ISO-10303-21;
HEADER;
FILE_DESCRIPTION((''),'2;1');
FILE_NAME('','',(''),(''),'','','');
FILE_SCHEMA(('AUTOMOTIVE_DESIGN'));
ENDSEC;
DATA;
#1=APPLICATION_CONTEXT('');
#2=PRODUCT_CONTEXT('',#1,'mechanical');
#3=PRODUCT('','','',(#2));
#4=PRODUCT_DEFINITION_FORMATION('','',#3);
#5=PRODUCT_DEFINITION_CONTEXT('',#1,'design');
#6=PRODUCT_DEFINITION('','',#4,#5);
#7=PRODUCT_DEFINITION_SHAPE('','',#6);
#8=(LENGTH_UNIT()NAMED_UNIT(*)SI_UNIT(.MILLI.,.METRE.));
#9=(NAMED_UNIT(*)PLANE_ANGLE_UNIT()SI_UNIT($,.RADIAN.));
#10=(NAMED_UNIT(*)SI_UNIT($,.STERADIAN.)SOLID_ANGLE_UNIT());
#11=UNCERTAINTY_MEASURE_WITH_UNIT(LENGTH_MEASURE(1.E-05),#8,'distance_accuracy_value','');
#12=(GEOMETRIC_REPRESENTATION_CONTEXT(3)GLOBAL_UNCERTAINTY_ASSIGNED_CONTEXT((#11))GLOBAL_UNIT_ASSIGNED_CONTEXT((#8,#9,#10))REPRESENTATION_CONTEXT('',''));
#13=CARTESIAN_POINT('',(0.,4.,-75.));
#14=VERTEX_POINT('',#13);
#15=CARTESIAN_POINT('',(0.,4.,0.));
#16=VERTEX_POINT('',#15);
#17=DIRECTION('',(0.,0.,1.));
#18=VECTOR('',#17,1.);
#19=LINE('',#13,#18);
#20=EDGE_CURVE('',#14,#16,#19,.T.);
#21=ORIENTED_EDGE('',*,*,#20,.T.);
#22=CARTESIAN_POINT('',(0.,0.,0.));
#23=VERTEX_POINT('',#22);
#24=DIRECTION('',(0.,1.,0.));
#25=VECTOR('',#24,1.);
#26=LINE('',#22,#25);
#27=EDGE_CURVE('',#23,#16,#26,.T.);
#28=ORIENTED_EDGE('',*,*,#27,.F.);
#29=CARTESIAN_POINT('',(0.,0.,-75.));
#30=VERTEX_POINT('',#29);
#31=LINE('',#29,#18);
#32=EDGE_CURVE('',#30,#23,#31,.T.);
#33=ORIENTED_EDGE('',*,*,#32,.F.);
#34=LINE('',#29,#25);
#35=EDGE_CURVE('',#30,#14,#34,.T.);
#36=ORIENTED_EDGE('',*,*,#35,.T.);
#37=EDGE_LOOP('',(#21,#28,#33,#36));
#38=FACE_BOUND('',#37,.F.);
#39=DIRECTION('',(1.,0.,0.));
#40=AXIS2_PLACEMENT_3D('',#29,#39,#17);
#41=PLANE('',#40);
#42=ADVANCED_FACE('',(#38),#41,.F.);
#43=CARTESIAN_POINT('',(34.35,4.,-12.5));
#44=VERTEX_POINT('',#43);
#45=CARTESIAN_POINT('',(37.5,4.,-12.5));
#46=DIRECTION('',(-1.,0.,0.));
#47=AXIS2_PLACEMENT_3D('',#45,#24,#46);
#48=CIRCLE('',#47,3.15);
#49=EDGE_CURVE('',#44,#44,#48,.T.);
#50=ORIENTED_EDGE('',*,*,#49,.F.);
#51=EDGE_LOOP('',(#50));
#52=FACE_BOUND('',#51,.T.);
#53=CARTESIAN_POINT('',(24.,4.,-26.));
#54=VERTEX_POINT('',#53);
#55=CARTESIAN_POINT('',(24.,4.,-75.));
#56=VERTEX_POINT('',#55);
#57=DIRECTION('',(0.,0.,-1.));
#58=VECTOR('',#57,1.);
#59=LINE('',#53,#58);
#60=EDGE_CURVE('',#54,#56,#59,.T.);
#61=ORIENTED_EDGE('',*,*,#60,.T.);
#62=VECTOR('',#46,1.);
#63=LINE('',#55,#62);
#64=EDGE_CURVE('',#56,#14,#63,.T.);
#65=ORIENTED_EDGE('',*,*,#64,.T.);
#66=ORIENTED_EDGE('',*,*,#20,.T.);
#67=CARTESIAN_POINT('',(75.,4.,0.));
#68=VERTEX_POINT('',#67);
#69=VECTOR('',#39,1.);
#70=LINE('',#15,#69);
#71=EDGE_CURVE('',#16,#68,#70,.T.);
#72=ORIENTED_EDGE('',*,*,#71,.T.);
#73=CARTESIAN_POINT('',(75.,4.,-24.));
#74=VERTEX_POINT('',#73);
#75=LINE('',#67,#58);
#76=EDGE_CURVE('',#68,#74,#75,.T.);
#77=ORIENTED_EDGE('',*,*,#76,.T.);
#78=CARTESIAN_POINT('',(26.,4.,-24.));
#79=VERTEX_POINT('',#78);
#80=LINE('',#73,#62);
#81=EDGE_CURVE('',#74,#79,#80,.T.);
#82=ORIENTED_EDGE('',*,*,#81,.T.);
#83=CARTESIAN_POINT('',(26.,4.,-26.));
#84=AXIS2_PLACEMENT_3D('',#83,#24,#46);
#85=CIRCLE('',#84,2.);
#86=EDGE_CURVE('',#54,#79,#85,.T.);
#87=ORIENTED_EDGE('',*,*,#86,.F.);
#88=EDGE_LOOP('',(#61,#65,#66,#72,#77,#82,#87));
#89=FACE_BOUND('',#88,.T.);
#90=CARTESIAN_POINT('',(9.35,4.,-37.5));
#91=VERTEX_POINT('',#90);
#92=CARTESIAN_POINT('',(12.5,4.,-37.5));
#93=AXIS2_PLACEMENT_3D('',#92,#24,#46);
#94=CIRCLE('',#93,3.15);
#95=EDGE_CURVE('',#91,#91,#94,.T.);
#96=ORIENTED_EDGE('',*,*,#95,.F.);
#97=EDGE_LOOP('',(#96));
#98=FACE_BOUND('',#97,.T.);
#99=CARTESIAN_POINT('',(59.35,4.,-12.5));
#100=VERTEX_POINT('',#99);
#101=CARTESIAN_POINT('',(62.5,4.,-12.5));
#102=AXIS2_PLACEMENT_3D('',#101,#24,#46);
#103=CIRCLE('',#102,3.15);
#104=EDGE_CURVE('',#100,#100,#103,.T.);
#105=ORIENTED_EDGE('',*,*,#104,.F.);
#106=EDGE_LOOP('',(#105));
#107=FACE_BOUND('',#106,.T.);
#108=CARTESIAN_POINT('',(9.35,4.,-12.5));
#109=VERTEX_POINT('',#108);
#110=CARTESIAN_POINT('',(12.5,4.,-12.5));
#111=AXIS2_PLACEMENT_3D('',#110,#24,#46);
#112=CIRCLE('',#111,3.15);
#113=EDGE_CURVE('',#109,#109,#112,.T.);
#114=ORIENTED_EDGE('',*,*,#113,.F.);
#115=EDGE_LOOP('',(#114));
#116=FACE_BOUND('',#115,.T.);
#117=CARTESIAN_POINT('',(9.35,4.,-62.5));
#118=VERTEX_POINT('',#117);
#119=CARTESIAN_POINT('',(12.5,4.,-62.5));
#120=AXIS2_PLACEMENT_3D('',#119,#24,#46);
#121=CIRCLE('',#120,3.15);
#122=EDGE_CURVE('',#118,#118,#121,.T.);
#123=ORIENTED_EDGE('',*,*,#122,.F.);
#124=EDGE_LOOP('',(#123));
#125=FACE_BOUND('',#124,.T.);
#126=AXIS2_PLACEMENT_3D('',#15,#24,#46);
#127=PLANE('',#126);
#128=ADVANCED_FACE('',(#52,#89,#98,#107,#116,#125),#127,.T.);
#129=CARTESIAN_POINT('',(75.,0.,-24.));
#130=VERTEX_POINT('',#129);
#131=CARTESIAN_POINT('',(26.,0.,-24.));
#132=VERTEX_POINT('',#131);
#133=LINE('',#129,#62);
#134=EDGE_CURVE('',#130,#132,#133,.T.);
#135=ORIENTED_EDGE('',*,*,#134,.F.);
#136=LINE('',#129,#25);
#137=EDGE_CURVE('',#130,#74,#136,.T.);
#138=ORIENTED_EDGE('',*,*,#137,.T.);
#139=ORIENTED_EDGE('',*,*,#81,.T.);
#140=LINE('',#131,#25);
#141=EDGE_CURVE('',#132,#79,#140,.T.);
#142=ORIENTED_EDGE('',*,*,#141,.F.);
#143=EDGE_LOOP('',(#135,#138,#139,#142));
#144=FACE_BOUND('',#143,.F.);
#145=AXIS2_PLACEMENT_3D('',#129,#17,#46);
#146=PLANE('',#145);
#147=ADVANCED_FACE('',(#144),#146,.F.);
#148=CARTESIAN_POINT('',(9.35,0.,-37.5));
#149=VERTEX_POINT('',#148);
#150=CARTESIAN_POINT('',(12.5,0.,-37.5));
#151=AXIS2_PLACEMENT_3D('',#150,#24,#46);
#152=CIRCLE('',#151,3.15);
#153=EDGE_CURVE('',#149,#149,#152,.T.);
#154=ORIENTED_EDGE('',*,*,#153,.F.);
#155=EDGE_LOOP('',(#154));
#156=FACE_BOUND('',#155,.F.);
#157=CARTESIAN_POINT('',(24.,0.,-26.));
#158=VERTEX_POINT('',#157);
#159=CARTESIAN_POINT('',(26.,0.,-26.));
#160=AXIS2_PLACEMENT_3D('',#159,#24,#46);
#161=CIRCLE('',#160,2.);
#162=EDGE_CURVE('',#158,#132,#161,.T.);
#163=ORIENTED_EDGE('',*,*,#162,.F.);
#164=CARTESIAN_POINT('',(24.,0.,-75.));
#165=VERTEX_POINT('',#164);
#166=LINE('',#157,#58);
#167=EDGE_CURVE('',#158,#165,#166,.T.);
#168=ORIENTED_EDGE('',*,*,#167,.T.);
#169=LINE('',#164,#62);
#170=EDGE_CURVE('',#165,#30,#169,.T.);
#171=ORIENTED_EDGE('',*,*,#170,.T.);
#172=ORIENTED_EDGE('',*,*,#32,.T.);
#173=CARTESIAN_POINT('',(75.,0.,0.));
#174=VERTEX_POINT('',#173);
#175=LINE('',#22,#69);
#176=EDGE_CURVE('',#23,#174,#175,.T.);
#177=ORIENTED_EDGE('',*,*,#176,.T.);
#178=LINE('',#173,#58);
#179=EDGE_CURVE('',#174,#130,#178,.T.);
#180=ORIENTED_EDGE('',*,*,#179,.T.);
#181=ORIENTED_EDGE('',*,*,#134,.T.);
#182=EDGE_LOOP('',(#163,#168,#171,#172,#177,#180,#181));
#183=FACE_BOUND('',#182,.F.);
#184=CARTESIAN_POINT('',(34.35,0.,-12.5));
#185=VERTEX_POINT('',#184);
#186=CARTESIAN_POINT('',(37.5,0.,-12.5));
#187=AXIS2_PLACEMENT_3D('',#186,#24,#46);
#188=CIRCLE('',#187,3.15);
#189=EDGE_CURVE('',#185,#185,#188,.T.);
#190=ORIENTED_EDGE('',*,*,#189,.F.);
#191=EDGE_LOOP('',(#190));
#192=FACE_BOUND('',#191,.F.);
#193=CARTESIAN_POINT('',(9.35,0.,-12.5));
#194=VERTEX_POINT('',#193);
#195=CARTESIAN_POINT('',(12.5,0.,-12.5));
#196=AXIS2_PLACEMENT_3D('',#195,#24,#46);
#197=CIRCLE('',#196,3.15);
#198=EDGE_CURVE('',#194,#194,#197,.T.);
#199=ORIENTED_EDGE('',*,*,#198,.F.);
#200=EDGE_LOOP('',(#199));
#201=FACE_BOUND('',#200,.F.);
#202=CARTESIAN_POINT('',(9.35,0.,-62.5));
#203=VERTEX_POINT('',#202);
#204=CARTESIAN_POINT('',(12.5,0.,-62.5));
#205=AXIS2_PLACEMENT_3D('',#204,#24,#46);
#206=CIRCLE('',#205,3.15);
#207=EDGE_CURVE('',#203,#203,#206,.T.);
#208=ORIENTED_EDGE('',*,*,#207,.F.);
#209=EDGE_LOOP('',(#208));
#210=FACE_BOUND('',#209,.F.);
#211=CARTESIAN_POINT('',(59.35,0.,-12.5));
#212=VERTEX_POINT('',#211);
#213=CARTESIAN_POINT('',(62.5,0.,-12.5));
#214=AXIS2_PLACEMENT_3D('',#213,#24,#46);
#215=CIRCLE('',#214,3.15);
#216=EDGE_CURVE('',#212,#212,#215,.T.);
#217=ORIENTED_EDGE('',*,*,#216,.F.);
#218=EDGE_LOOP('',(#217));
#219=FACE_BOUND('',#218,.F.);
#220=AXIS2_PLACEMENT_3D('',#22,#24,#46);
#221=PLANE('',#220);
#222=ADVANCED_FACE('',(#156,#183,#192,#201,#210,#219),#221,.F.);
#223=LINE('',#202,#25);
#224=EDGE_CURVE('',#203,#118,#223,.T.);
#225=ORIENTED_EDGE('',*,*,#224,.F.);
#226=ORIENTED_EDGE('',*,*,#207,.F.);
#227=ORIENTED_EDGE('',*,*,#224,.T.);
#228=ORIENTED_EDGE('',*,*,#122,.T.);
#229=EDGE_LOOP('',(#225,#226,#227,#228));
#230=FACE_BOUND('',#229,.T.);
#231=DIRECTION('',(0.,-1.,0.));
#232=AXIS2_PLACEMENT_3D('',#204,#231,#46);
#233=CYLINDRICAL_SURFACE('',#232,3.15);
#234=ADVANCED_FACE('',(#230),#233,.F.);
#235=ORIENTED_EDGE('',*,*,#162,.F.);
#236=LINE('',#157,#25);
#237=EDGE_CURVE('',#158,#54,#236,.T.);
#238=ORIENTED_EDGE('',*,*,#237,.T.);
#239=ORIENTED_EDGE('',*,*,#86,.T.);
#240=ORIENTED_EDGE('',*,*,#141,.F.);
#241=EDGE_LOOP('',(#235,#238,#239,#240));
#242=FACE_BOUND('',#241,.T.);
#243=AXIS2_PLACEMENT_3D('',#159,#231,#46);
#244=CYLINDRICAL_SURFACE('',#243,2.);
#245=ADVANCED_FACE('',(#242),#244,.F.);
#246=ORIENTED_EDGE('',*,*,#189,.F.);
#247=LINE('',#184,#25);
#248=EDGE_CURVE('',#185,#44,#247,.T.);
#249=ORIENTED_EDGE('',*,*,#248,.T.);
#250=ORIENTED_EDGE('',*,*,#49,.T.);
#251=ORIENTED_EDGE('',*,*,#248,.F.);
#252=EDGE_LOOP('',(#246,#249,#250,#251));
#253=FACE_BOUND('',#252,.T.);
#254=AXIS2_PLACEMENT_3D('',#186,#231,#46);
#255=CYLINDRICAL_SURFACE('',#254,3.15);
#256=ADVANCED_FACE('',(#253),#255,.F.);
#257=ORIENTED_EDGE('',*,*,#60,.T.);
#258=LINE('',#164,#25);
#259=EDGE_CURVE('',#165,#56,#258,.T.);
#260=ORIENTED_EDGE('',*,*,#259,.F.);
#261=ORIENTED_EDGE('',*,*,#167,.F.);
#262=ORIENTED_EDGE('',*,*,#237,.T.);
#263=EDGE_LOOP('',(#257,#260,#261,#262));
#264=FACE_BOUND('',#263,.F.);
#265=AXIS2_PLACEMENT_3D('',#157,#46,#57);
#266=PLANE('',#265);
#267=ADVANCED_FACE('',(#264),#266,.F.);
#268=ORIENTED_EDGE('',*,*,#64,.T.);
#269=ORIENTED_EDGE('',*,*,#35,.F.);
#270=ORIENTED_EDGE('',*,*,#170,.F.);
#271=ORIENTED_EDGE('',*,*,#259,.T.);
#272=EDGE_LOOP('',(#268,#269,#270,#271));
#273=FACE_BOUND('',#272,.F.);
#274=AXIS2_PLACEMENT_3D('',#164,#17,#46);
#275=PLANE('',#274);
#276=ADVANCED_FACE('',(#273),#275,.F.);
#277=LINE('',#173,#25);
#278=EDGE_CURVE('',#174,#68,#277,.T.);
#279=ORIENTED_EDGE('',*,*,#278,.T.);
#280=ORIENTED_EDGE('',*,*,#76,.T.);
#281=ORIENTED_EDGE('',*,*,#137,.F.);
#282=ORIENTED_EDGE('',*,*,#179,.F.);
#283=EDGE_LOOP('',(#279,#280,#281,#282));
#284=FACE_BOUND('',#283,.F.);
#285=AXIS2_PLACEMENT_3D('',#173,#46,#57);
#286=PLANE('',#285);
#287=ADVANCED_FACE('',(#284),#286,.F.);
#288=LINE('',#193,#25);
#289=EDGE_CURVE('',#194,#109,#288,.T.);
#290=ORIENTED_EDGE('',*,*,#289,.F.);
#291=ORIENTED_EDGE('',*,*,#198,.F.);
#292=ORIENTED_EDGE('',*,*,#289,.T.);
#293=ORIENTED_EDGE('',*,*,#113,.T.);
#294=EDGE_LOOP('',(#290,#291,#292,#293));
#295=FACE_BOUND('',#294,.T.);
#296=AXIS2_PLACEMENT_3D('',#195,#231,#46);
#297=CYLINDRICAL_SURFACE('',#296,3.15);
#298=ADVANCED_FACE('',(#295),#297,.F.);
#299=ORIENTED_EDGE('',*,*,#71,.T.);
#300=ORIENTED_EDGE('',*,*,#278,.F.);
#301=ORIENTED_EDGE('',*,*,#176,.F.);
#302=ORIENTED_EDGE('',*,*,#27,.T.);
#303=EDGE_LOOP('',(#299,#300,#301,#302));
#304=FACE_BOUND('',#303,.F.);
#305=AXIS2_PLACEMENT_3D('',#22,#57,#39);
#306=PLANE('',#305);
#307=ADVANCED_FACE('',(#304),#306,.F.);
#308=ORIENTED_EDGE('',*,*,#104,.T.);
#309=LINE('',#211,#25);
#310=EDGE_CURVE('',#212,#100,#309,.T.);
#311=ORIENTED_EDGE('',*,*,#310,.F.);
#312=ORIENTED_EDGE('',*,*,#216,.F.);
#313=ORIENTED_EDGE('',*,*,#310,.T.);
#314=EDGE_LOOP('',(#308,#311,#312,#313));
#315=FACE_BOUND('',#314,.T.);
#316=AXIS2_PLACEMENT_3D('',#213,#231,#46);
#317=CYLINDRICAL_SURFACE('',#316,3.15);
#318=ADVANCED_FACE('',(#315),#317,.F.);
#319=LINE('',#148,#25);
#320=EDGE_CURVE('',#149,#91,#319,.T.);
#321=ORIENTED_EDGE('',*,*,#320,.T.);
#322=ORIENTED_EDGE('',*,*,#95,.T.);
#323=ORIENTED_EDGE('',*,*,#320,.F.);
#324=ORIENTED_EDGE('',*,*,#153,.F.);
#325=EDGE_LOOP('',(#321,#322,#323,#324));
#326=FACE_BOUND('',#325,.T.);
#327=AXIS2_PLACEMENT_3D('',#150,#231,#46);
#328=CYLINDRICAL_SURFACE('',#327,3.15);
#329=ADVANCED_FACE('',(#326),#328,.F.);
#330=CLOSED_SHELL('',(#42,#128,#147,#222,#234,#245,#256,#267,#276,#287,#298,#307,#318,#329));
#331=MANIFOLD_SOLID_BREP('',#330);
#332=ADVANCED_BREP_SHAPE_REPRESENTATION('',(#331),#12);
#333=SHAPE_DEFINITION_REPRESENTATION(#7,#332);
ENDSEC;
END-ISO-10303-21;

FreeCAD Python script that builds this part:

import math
import FreeCAD as App
import Part
import Sketcher
Q = App.Units.Quantity

doc = App.newDocument("Part")
body = doc.addObject("PartDesign::Body", "Body")

sketch1 = body.newObject("Sketcher::SketchObject", "Sketch")
sketch1.AttachmentSupport = (doc.getObject("XZ_Plane"), [""])
sketch1.MapMode = "FlatFace"
sketch1.addGeometry(Part.LineSegment(App.Vector(0, -75, 0), App.Vector(0, 0, 0)), False)
sketch1.addGeometry(Part.LineSegment(App.Vector(0, 0, 0), App.Vector(75, 0, 0)), False)
sketch1.addGeometry(Part.LineSegment(App.Vector(75, 0, 0), App.Vector(75, -24, 0)), False)
sketch1.addGeometry(Part.LineSegment(App.Vector(75, -24, 0), App.Vector(26, -24, 0)), False)
sketch1.addGeometry(Part.ArcOfCircle(Part.Circle(App.Vector(26, -26, 0), App.Vector(0, 0, 1), 2), math.radians(90), math.radians(180)), False)
sketch1.addGeometry(Part.LineSegment(App.Vector(24, -26, 0), App.Vector(24, -75, 0)), False)
sketch1.addGeometry(Part.LineSegment(App.Vector(24, -75, 0), App.Vector(0, -75, 0)), False)
sketch1.addGeometry(Part.Circle(App.Vector(12.5, -62.5, 0), App.Vector(0, 0, 1), 3.1), False)
sketch1.addGeometry(Part.Circle(App.Vector(62.5, -12.5, 0), App.Vector(0, 0, 1), 3.1), False)
sketch1.addGeometry(Part.Circle(App.Vector(12.5, -37.5, 0), App.Vector(0, 0, 1), 3.1), False)
sketch1.addGeometry(Part.Circle(App.Vector(37.5, -12.5, 0), App.Vector(0, 0, 1), 3.1), False)
sketch1.addGeometry(Part.Circle(App.Vector(12.5, -12.5, 0), App.Vector(0, 0, 1), 3.1), False)
sketch1.addConstraint(Sketcher.Constraint("Coincident", 0, 2, 1, 1))
sketch1.addConstraint(Sketcher.Constraint("Coincident", 1, 2, 2, 1))
sketch1.addConstraint(Sketcher.Constraint("Coincident", 2, 2, 3, 1))
sketch1.addConstraint(Sketcher.Constraint("Tangent", 3, 2, 4, 1))
sketch1.addConstraint(Sketcher.Constraint("Tangent", 4, 2, 5, 1))
sketch1.addConstraint(Sketcher.Constraint("Coincident", 5, 2, 6, 1))
sketch1.addConstraint(Sketcher.Constraint("Coincident", 6, 2, 0, 1))
sketch1.addConstraint(Sketcher.Constraint("Vertical", 0))
sketch1.addConstraint(Sketcher.Constraint("Horizontal", 1))
sketch1.addConstraint(Sketcher.Constraint("Vertical", 2))
sketch1.addConstraint(Sketcher.Constraint("Horizontal", 3))
sketch1.addConstraint(Sketcher.Constraint("Vertical", 5))
sketch1.addConstraint(Sketcher.Constraint("Horizontal", 6))
sketch1.addConstraint(Sketcher.Constraint("Coincident", 0, 2, -1, 1))
sketch1.addConstraint(Sketcher.Constraint("Equal", 7, 8))
sketch1.addConstraint(Sketcher.Constraint("Equal", 8, 9))
sketch1.addConstraint(Sketcher.Constraint("Equal", 9, 10))
sketch1.addConstraint(Sketcher.Constraint("Equal", 10, 11))
sketch1.addConstraint(Sketcher.Constraint("Horizontal", 8, 3, 10, 3))
sketch1.addConstraint(Sketcher.Constraint("Horizontal", 10, 3, 11, 3))
sketch1.addConstraint(Sketcher.Constraint("Vertical", 7, 3, 9, 3))
sketch1.addConstraint(Sketcher.Constraint("Vertical", 9, 3, 11, 3))
sketch1.addConstraint(Sketcher.Constraint("Equal", 1, 0))
sketch1.addConstraint(Sketcher.Constraint("Equal", 6, 2))
sketch1.addConstraint(Sketcher.Constraint("Radius", 4, Q("2 mm")))
sketch1.addConstraint(Sketcher.Constraint("Diameter", 7, Q("6.3 mm")))
sketch1.addConstraint(Sketcher.Constraint("DistanceX", 1, 1, 1, 2, Q("75 mm")))
sketch1.addConstraint(Sketcher.Constraint("DistanceX", 3, 2, 3, 1, Q("49 mm")))
sketch1.addConstraint(Sketcher.Constraint("DistanceX", 7, 3, 8, 3, Q("50 mm")))
sketch1.addConstraint(Sketcher.Constraint("DistanceY", 7, 3, 8, 3, Q("50 mm")))
sketch1.addConstraint(Sketcher.Constraint("DistanceY", 7, 3, 9, 3, Q("25 mm")))
sketch1.addConstraint(Sketcher.Constraint("DistanceX", 10, 3, 8, 3, Q("25 mm")))
sketch1.addConstraint(Sketcher.Constraint("DistanceX", -1, 1, 7, 3, Q("12.5 mm")))
sketch1.addConstraint(Sketcher.Constraint("DistanceY", 7, 3, -1, 1, Q("62.5 mm")))
pad1 = body.newObject("PartDesign::Pad", "Pad")
pad1.Profile = sketch1
pad1.Length = 4
pad1.Reversed = True

doc.recompute()
